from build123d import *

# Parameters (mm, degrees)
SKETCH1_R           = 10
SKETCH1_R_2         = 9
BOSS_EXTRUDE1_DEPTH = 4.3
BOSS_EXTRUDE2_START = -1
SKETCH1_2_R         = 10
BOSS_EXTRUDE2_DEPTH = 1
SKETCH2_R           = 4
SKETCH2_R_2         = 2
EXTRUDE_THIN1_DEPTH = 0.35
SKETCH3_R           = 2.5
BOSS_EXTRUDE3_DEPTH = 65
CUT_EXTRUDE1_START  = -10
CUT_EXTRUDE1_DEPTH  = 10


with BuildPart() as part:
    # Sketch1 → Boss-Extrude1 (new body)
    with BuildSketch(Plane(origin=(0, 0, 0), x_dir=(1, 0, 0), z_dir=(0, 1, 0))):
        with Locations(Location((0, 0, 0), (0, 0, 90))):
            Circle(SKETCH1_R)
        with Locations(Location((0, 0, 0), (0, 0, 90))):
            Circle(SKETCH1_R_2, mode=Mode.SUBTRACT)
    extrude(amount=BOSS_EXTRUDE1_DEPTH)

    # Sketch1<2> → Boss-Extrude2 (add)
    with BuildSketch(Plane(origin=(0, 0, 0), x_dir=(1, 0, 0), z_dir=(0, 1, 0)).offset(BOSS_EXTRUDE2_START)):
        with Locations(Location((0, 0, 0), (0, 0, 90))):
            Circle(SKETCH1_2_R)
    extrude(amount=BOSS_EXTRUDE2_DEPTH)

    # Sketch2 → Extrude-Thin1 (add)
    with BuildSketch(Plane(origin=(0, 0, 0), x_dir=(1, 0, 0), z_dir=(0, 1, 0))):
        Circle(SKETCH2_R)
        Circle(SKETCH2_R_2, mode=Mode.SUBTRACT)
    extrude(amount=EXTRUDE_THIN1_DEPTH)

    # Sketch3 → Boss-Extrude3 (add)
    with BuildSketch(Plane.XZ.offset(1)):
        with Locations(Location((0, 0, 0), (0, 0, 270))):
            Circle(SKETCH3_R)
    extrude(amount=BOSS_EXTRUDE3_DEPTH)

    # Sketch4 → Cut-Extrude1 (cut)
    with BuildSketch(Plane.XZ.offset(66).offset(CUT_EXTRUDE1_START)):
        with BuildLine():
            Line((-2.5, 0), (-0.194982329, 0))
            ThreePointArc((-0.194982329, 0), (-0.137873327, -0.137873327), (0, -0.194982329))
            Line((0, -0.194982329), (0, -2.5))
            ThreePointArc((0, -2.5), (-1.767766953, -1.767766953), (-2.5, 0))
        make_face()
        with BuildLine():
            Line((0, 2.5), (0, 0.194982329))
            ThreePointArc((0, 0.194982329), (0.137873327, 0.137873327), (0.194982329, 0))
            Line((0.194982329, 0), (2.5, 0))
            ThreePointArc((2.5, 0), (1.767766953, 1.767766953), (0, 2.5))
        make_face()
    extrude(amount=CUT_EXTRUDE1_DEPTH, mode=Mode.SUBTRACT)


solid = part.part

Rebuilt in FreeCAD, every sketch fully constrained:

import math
import FreeCAD as App
import Part
import Sketcher

V = App.Vector

doc = App.newDocument("Part")
body = doc.addObject("PartDesign::Body", "Body")

sketch1 = body.newObject("Sketcher::SketchObject", "Sketch")
sketch1.AttachmentSupport = (doc.getObject("XZ_Plane"), [""])
sketch1.MapMode = "FlatFace"
sketch1.addGeometry([
    Part.Circle(V(0, 0, 0), V(0, 0, 1), 10),
    Part.Circle(V(0, 0, 0), V(0, 0, 1), 9),
], False)
sketch1.addConstraint([
    Sketcher.Constraint("Coincident", 0, 3, -1, 1),
    Sketcher.Constraint("Coincident", 1, 3, -1, 1),
    Sketcher.Constraint("Diameter", 0, 20.0),
    Sketcher.Constraint("Diameter", 1, 18.0),
])
pad1 = body.newObject("PartDesign::Pad", "Pad")
pad1.Profile = sketch1
pad1.Length = 4.3
pad1.Reversed = True

sketch2 = body.newObject("Sketcher::SketchObject", "Sketch001")
sketch2.AttachmentSupport = (doc.getObject("XZ_Plane"), [""])
sketch2.MapMode = "FlatFace"
sketch2.AttachmentOffset = App.Placement(V(0, 0, 1), App.Rotation())
sketch2.addGeometry(Part.Circle(V(0, 0, 0), V(0, 0, 1), 10), False)
sketch2.addConstraint([
    Sketcher.Constraint("Coincident", 0, 3, -1, 1),
    Sketcher.Constraint("Diameter", 0, 20.0),
])
pad2 = body.newObject("PartDesign::Pad", "Pad001")
pad2.Profile = sketch2
pad2.Length = 1
pad2.Reversed = True

sketch3 = body.newObject("Sketcher::SketchObject", "Sketch002")
sketch3.AttachmentSupport = (doc.getObject("XZ_Plane"), [""])
sketch3.MapMode = "FlatFace"
sketch3.addGeometry([
    Part.Circle(V(0, 0, 0), V(0, 0, 1), 4),
    Part.Circle(V(0, 0, 0), V(0, 0, 1), 2),
], False)
sketch3.addConstraint([
    Sketcher.Constraint("Coincident", 0, 3, -1, 1),
    Sketcher.Constraint("Coincident", 1, 3, -1, 1),
    Sketcher.Constraint("Diameter", 0, 8.0),
    Sketcher.Constraint("Diameter", 1, 4.0),
])
pad3 = body.newObject("PartDesign::Pad", "Pad002")
pad3.Profile = sketch3
pad3.Length = 0.35
pad3.Reversed = True

sketch4 = body.newObject("Sketcher::SketchObject", "Sketch003")
sketch4.AttachmentSupport = (doc.getObject("XZ_Plane"), [""])
sketch4.MapMode = "FlatFace"
sketch4.AttachmentOffset = App.Placement(V(0, 0, 1), App.Rotation())
sketch4.addGeometry(Part.Circle(V(0, 0, 0), V(0, 0, 1), 2.5), False)
sketch4.addConstraint([
    Sketcher.Constraint("Coincident", 0, 3, -1, 1),
    Sketcher.Constraint("Diameter", 0, 5.0),
])
pad4 = body.newObject("PartDesign::Pad", "Pad003")
pad4.Profile = sketch4
pad4.Length = 65

sketch5 = body.newObject("Sketcher::SketchObject", "Sketch004")
sketch5.AttachmentSupport = (doc.getObject("XZ_Plane"), [""])
sketch5.MapMode = "FlatFace"
sketch5.AttachmentOffset = App.Placement(V(0, 0, 56), App.Rotation())
sketch5.addGeometry([
    Part.LineSegment(V(-0.194982, 0, 0), V(-2.5, 0, 0)),
    Part.ArcOfCircle(Part.Circle(V(0, 0, 0), V(0, 0, 1), 2.5), math.radians(180), math.radians(270)),
    Part.LineSegment(V(0, -2.5, 0), V(0, -0.194982, 0)),
    Part.ArcOfCircle(Part.Circle(V(0, 0, 0), V(0, 0, 1), 0.194982), math.radians(180), math.radians(270)),
    Part.LineSegment(V(0, 2.5, 0), V(0, 0.194982, 0)),
    Part.ArcOfCircle(Part.Circle(V(0, 0, 0), V(0, 0, 1), 0.194982), math.radians(0), math.radians(90)),
    Part.LineSegment(V(0.194982, 0, 0), V(2.5, 0, 0)),
    Part.ArcOfCircle(Part.Circle(V(0, 0, 0), V(0, 0, 1), 2.5), math.radians(0), math.radians(90)),
], False)
sketch5.addConstraint([
    Sketcher.Constraint("Coincident", 0, 2, 1, 1),
    Sketcher.Constraint("Coincident", 1, 2, 2, 1),
    Sketcher.Constraint("Coincident", 2, 2, 3, 2),
    Sketcher.Constraint("Coincident", 3, 1, 0, 1),
    Sketcher.Constraint("Coincident", 4, 2, 5, 2),
    Sketcher.Constraint("Coincident", 5, 1, 6, 1),
    Sketcher.Constraint("Coincident", 6, 2, 7, 1),
    Sketcher.Constraint("Coincident", 7, 2, 4, 1),
    Sketcher.Constraint("Horizontal", 0),
    Sketcher.Constraint("Vertical", 2),
    Sketcher.Constraint("Vertical", 4),
    Sketcher.Constraint("Horizontal", 6),
    Sketcher.Constraint("Coincident", 1, 3, -1, 1),
    Sketcher.Constraint("Coincident", 3, 3, -1, 1),
    Sketcher.Constraint("Coincident", 5, 3, -1, 1),
    Sketcher.Constraint("Coincident", 7, 3, -1, 1),
    Sketcher.Constraint("Equal", 3, 5),
    Sketcher.Constraint("Equal", 1, 7),
    Sketcher.Constraint("PointOnObject", 0, 2, -1),
    Sketcher.Constraint("PointOnObject", 1, 2, -2),
    Sketcher.Constraint("PointOnObject", 4, 2, -2),
    Sketcher.Constraint("PointOnObject", 5, 1, -1),
    Sketcher.Constraint("Radius", 1, 2.5),
    Sketcher.Constraint("Radius", 3, 0.194982),
])
pocket1 = body.newObject("PartDesign::Pocket", "Pocket")
pocket1.Profile = sketch5
pocket1.Length = 10
pocket1.Reversed = True

doc.recompute()
